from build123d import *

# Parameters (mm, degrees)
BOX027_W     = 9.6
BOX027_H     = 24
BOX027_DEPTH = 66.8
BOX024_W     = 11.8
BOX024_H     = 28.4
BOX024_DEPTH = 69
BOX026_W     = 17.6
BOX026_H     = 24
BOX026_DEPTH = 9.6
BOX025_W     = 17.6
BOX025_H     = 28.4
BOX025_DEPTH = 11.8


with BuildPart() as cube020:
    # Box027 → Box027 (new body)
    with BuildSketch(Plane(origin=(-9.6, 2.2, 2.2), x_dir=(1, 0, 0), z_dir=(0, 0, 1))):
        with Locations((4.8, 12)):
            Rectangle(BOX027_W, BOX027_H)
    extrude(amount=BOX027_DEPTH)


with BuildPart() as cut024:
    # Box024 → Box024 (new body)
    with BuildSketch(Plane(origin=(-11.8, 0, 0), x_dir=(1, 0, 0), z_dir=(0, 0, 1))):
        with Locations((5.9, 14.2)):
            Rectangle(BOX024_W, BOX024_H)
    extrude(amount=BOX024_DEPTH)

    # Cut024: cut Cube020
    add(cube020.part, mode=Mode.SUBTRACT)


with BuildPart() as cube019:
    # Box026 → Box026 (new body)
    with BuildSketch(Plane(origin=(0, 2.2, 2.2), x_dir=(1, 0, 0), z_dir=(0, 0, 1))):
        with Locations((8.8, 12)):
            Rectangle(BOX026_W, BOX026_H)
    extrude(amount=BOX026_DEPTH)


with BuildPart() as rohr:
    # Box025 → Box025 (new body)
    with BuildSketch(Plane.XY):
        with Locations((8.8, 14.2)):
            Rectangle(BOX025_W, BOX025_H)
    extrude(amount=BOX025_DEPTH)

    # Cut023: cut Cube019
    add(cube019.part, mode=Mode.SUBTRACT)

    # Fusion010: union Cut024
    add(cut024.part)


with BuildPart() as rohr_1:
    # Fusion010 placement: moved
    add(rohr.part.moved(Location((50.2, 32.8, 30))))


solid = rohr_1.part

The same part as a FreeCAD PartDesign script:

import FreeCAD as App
import Part
import Sketcher
from FreeCAD import Vector
Q = App.Units.Quantity


def add_polygon(sketch, points):
    """Adds a closed chain of lines whose ends are joined by coincident constraints."""
    first, n = sketch.GeometryCount, len(points)
    for a, b in zip(points, points[1:] + points[:1]):
        sketch.addGeometry(Part.LineSegment(App.Vector(*a, 0), App.Vector(*b, 0)), False)
    for i in range(n):
        sketch.addConstraint(Sketcher.Constraint("Coincident", first + i, 2, first + (i + 1) % n, 1))

doc = App.newDocument("Part")
body = doc.addObject("PartDesign::Body", "Body")

sketch1 = doc.addObject("Sketcher::SketchObject", "Sketch")
body.addObject(sketch1)
sketch1.AttachmentSupport = (doc.XY_Plane, [""])
sketch1.MapMode = "FlatFace"
sketch1.AttachmentOffset = App.Placement(Vector(0, 0, 2.2), App.Rotation())
add_polygon(sketch1, [(-10, 26), (-10, 2), (0, 2), (0, 26)])
sketch1.addConstraint(Sketcher.Constraint("Vertical", 0))
sketch1.addConstraint(Sketcher.Constraint("Horizontal", 1))
sketch1.addConstraint(Sketcher.Constraint("Vertical", 2))
sketch1.addConstraint(Sketcher.Constraint("Horizontal", 3))
sketch1.addConstraint(Sketcher.Constraint("PointOnObject", 1, 2, -2))
sketch1.addConstraint(Sketcher.Constraint("DistanceY", 0, 2, 0, 1, Q("24 mm")))
sketch1.addConstraint(Sketcher.Constraint("DistanceX", 1, 1, 1, 2, Q("9.6 mm")))
sketch1.addConstraint(Sketcher.Constraint("DistanceY", -1, 1, 0, 2, Q("2.2 mm")))
pad1 = doc.addObject("PartDesign::Pad", "Pad")
body.addObject(pad1)
pad1.Profile = sketch1
pad1.Length = 66.8
body2 = doc.addObject("PartDesign::Body", "Body001")

sketch2 = doc.addObject("Sketcher::SketchObject", "Sketch001")
body2.addObject(sketch2)
sketch2.AttachmentSupport = (doc.getObject("XY_Plane001"), [""])
sketch2.MapMode = "FlatFace"
add_polygon(sketch2, [(-12, 28), (-12, 0), (0, 0), (0, 28)])
sketch2.addConstraint(Sketcher.Constraint("Vertical", 0))
sketch2.addConstraint(Sketcher.Constraint("Horizontal", 1))
sketch2.addConstraint(Sketcher.Constraint("Vertical", 2))
sketch2.addConstraint(Sketcher.Constraint("Horizontal", 3))
sketch2.addConstraint(Sketcher.Constraint("Coincident", 1, 2, -1, 1))
sketch2.addConstraint(Sketcher.Constraint("DistanceX", 1, 1, 1, 2, Q("11.8 mm")))
sketch2.addConstraint(Sketcher.Constraint("DistanceY", 0, 2, 0, 1, Q("28.4 mm")))
pad2 = doc.addObject("PartDesign::Pad", "Pad001")
body2.addObject(pad2)
pad2.Profile = sketch2
pad2.Length = 69
doc.recompute()

boolean = doc.addObject("PartDesign::Boolean", "Boolean")
body2.addObject(boolean)
boolean.Type = "Cut"
boolean.addObjects([body])
body3 = doc.addObject("PartDesign::Body", "Body002")

sketch3 = doc.addObject("Sketcher::SketchObject", "Sketch002")
body3.addObject(sketch3)
sketch3.AttachmentSupport = (doc.getObject("XY_Plane002"), [""])
sketch3.MapMode = "FlatFace"
sketch3.AttachmentOffset = App.Placement(Vector(0, 0, 2.2), App.Rotation())
add_polygon(sketch3, [(0, 26), (0, 2), (18, 2), (18, 26)])
sketch3.addConstraint(Sketcher.Constraint("Vertical", 0))
sketch3.addConstraint(Sketcher.Constraint("Horizontal", 1))
sketch3.addConstraint(Sketcher.Constraint("Vertical", 2))
sketch3.addConstraint(Sketcher.Constraint("Horizontal", 3))
sketch3.addConstraint(Sketcher.Constraint("PointOnObject", 0, 2, -2))
sketch3.addConstraint(Sketcher.Constraint("DistanceY", 0, 2, 0, 1, Q("24 mm")))
sketch3.addConstraint(Sketcher.Constraint("DistanceX", 1, 1, 1, 2, Q("17.6 mm")))
sketch3.addConstraint(Sketcher.Constraint("DistanceY", -1, 1, 0, 2, Q("2.2 mm")))
pad3 = doc.addObject("PartDesign::Pad", "Pad002")
body3.addObject(pad3)
pad3.Profile = sketch3
pad3.Length = 9.6
body4 = doc.addObject("PartDesign::Body", "Body003")

sketch4 = doc.addObject("Sketcher::SketchObject", "Sketch003")
body4.addObject(sketch4)
sketch4.AttachmentSupport = (doc.getObject("XY_Plane003"), [""])
sketch4.MapMode = "FlatFace"
add_polygon(sketch4, [(0, 28), (0, 0), (18, 0), (18, 28)])
sketch4.addConstraint(Sketcher.Constraint("Vertical", 0))
sketch4.addConstraint(Sketcher.Constraint("Horizontal", 1))
sketch4.addConstraint(Sketcher.Constraint("Vertical", 2))
sketch4.addConstraint(Sketcher.Constraint("Horizontal", 3))
sketch4.addConstraint(Sketcher.Constraint("Coincident", 0, 2, -1, 1))
sketch4.addConstraint(Sketcher.Constraint("DistanceX", 1, 1, 1, 2, Q("17.6 mm")))
sketch4.addConstraint(Sketcher.Constraint("DistanceY", 0, 2, 0, 1, Q("28.4 mm")))
pad4 = doc.addObject("PartDesign::Pad", "Pad003")
body4.addObject(pad4)
pad4.Profile = sketch4
pad4.Length = 11.8
doc.recompute()

boolean2 = doc.addObject("PartDesign::Boolean", "Boolean001")
body4.addObject(boolean2)
boolean2.Type = "Cut"
boolean2.addObjects([body3])
doc.recompute()

boolean3 = doc.addObject("PartDesign::Boolean", "Boolean002")
body4.addObject(boolean3)
boolean3.Type = "Fuse"
boolean3.addObjects([body2])
body5 = doc.addObject("PartDesign::Body", "Body004")
doc.recompute()

body4.Placement = App.Placement(Vector(50.2, 32.8, 30), App.Rotation(Vector(0, 0, 1), 0))
boolean4 = doc.addObject("PartDesign::Boolean", "Boolean003")
body5.addObject(boolean4)
boolean4.Type = "Fuse"
boolean4.addObjects([body4])

doc.recompute()
